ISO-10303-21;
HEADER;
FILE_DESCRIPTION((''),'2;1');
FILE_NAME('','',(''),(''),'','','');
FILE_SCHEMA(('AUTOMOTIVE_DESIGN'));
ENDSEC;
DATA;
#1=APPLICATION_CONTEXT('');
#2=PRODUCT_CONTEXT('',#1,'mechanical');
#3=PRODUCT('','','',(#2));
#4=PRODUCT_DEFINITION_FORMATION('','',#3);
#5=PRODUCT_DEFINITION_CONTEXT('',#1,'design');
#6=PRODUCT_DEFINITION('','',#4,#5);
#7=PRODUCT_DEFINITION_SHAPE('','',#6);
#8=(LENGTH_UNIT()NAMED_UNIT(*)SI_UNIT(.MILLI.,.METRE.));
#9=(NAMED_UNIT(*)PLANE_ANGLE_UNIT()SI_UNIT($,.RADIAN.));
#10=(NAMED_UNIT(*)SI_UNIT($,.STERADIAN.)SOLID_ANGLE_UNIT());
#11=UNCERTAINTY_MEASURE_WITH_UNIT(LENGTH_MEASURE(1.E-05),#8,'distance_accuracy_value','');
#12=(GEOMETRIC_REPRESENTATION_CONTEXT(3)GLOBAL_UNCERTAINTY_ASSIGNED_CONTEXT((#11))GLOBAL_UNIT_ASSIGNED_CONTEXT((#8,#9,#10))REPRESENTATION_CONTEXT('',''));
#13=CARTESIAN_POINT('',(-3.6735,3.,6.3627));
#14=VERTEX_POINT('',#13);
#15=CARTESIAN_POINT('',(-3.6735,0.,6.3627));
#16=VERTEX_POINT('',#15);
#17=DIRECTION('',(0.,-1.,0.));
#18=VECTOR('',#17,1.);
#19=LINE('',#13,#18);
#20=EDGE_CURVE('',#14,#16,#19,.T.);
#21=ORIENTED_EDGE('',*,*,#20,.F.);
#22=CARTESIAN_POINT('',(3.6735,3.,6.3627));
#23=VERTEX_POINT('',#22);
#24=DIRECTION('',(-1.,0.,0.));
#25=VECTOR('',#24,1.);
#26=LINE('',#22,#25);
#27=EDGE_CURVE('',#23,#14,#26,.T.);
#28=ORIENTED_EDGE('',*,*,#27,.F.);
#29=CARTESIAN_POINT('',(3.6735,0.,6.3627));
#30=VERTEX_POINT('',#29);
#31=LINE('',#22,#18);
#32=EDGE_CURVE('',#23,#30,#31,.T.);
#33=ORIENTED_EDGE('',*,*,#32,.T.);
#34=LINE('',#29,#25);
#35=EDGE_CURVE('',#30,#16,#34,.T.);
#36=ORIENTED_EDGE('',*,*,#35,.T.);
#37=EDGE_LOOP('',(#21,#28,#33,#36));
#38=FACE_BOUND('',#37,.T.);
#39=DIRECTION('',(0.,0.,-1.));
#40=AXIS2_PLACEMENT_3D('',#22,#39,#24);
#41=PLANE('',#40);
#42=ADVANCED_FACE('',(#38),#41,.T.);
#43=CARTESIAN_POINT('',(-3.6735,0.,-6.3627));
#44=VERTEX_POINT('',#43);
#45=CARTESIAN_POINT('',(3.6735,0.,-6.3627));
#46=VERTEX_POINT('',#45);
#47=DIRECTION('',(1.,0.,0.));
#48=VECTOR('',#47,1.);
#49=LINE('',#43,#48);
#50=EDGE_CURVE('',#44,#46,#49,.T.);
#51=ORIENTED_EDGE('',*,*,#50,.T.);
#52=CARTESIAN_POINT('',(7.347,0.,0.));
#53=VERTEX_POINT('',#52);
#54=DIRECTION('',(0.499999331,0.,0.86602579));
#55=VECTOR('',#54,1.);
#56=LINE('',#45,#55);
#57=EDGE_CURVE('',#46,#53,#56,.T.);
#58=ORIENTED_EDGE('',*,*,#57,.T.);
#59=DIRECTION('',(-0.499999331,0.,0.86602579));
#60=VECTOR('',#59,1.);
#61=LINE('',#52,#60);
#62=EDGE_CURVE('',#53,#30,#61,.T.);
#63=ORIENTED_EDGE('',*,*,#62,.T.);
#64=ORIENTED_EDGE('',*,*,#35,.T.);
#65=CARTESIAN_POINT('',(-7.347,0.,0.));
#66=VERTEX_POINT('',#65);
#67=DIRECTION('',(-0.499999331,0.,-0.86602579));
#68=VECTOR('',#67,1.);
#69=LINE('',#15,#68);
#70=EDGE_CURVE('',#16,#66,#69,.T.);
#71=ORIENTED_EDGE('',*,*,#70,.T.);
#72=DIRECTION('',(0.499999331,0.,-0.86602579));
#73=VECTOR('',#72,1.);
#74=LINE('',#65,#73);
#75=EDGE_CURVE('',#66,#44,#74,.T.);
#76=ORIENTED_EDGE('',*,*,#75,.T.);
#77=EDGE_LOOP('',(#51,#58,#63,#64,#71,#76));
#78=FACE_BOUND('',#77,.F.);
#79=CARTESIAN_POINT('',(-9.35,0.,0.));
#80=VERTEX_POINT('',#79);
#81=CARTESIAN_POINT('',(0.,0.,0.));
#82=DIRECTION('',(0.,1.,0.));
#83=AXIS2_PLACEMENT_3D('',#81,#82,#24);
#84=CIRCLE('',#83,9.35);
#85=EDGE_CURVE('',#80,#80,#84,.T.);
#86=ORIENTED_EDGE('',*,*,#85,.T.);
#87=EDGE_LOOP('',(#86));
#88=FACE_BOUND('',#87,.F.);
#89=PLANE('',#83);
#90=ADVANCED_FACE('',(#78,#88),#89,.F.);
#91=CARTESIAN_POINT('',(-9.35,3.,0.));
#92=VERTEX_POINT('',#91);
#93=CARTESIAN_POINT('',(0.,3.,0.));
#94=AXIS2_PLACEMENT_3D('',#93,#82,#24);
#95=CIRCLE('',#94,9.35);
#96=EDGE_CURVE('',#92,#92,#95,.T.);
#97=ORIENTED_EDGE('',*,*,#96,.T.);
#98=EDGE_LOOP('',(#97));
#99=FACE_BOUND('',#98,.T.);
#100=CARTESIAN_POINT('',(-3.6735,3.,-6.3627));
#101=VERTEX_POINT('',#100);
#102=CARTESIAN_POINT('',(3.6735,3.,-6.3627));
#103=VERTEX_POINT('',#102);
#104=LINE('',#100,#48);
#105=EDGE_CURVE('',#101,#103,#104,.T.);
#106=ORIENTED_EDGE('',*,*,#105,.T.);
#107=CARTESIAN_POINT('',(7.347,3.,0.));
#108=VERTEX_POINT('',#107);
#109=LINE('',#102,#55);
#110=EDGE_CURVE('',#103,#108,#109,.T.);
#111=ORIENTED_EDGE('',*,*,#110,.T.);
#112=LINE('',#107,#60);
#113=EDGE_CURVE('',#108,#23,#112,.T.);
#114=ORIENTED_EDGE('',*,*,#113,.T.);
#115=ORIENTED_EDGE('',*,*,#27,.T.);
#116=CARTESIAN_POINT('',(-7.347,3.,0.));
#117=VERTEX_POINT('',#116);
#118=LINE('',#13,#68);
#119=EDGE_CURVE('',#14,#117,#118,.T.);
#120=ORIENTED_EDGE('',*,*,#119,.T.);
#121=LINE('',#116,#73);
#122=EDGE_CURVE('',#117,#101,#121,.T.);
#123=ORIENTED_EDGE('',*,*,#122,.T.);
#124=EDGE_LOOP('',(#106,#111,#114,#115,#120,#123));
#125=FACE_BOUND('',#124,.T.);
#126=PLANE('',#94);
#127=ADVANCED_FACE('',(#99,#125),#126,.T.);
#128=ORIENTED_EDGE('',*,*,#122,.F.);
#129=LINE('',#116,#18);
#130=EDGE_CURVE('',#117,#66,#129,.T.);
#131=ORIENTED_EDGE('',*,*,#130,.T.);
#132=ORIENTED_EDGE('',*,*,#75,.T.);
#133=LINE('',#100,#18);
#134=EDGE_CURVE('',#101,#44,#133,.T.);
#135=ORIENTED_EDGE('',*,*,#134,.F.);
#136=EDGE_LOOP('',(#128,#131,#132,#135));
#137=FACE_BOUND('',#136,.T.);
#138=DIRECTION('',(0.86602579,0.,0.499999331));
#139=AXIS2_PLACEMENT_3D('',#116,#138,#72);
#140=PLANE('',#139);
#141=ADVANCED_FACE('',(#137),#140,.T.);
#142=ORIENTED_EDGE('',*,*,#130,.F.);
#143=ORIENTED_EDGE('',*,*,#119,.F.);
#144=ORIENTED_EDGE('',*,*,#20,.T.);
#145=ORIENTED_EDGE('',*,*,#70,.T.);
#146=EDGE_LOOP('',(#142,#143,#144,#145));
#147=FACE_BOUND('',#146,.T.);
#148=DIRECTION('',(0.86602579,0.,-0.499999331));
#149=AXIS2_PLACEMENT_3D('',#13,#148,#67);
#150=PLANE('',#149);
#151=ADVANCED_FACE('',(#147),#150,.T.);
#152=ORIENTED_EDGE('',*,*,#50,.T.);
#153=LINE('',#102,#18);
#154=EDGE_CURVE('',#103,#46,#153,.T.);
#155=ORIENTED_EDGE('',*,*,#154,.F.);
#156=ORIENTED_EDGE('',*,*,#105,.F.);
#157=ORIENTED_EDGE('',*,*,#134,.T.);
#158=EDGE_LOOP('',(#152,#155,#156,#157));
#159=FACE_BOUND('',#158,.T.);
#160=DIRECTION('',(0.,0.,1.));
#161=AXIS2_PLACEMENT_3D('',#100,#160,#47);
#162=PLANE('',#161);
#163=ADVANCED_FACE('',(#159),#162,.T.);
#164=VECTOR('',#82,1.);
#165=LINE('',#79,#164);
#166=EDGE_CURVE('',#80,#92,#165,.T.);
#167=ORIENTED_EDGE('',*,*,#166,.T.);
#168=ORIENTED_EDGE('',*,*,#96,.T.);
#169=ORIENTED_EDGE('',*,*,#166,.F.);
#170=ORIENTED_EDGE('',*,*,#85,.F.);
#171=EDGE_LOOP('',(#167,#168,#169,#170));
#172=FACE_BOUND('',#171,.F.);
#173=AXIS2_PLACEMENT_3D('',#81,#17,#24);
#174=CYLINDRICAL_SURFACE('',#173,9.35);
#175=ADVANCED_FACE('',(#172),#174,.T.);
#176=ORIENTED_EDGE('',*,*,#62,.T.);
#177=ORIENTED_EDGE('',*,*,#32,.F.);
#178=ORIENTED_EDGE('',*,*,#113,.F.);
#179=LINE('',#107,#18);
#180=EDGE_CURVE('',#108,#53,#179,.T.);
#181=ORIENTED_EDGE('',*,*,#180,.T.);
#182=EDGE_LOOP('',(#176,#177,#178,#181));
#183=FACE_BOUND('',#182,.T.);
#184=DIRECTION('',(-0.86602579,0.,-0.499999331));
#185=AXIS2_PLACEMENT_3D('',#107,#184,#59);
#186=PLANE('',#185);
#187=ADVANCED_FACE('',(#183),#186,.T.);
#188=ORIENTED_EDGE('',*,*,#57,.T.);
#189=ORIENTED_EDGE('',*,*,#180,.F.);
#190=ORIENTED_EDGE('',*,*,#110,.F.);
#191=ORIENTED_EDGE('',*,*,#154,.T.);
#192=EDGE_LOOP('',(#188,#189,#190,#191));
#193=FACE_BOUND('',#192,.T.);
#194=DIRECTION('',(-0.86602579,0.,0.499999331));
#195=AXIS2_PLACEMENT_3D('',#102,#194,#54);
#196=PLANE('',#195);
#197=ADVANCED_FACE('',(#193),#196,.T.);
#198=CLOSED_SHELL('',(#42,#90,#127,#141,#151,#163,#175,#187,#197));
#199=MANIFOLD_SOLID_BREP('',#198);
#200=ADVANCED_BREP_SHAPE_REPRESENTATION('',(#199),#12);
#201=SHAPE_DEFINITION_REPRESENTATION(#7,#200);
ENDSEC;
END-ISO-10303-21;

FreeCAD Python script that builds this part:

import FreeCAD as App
import Part
import Sketcher
from FreeCAD import Vector
Q = App.Units.Quantity

doc = App.newDocument("Part")
body = doc.addObject("PartDesign::Body", "Body")

# Sketch on XZ plane
sketch1 = body.newObject("Sketcher::SketchObject", "Sketch")
sketch1.AttachmentSupport = (doc.getObject("XZ_Plane"), [""])
sketch1.MapMode = "FlatFace"
sketch1.addGeometry(Part.Circle(Vector(0, 0, 0), Vector(0, 0, 1), 9), False)
sketch1.addConstraint([
    Sketcher.Constraint("Coincident", 0, 3, -1, 1),
    Sketcher.Constraint("Diameter", 0, 18.7),
])
pad1 = body.newObject("PartDesign::Pad", "Pad")
pad1.Profile = sketch1
pad1.Length = 3
pad1.Reversed = True

# Sketch on XZ plane
sketch2 = body.newObject("Sketcher::SketchObject", "Sketch001")
sketch2.AttachmentSupport = (doc.getObject("XZ_Plane"), [""])
sketch2.MapMode = "FlatFace"
sketch2.AttachmentOffset = App.Placement(Vector(0, 0, -3), App.Rotation())
sketch2.addGeometry([
    Part.LineSegment(Vector(-4, -6, 0), Vector(-7, 0, 0)),  # 0
    Part.LineSegment(Vector(-7, 0, 0), Vector(-4, 6, 0)),  # 1
    Part.LineSegment(Vector(-4, 6, 0), Vector(4, 6, 0)),  # 2
    Part.LineSegment(Vector(4, 6, 0), Vector(7, 0, 0)),  # 3
    Part.LineSegment(Vector(7, 0, 0), Vector(4, -6, 0)),  # 4
    Part.LineSegment(Vector(4, -6, 0), Vector(-4, -6, 0)),  # 5
], False)
sketch2.addConstraint([
    Sketcher.Constraint("Coincident", 0, 2, 1, 1),
    Sketcher.Constraint("Coincident", 1, 2, 2, 1),
    Sketcher.Constraint("Coincident", 2, 2, 3, 1),
    Sketcher.Constraint("Coincident", 3, 2, 4, 1),
    Sketcher.Constraint("Coincident", 4, 2, 5, 1),
    Sketcher.Constraint("Coincident", 5, 2, 0, 1),
    Sketcher.Constraint("Horizontal", 2),
    Sketcher.Constraint("Horizontal", 5),
    Sketcher.Constraint("Symmetric", 0, 2, 3, 2, -1, 1),
    Sketcher.Constraint("Symmetric", 1, 2, 4, 2, -1, 1),
    Sketcher.Constraint("PointOnObject", 0, 2, -1),
    Sketcher.Constraint("Parallel", 0, 3),
    Sketcher.Constraint("Vertical", 2, 2, 4, 2),
    Sketcher.Constraint("Angle", 0, Q("120 deg")),
    Sketcher.Constraint("DistanceY", 4, 2, 2, 2, 12.7254),
    Sketcher.Constraint("DistanceX", 2, 1, 2, 2, 7.347),
])
pocket1 = body.newObject("PartDesign::Pocket", "Pocket")
pocket1.Profile = sketch2
pocket1.Length = 3
pocket1.Reversed = True

doc.recompute()
